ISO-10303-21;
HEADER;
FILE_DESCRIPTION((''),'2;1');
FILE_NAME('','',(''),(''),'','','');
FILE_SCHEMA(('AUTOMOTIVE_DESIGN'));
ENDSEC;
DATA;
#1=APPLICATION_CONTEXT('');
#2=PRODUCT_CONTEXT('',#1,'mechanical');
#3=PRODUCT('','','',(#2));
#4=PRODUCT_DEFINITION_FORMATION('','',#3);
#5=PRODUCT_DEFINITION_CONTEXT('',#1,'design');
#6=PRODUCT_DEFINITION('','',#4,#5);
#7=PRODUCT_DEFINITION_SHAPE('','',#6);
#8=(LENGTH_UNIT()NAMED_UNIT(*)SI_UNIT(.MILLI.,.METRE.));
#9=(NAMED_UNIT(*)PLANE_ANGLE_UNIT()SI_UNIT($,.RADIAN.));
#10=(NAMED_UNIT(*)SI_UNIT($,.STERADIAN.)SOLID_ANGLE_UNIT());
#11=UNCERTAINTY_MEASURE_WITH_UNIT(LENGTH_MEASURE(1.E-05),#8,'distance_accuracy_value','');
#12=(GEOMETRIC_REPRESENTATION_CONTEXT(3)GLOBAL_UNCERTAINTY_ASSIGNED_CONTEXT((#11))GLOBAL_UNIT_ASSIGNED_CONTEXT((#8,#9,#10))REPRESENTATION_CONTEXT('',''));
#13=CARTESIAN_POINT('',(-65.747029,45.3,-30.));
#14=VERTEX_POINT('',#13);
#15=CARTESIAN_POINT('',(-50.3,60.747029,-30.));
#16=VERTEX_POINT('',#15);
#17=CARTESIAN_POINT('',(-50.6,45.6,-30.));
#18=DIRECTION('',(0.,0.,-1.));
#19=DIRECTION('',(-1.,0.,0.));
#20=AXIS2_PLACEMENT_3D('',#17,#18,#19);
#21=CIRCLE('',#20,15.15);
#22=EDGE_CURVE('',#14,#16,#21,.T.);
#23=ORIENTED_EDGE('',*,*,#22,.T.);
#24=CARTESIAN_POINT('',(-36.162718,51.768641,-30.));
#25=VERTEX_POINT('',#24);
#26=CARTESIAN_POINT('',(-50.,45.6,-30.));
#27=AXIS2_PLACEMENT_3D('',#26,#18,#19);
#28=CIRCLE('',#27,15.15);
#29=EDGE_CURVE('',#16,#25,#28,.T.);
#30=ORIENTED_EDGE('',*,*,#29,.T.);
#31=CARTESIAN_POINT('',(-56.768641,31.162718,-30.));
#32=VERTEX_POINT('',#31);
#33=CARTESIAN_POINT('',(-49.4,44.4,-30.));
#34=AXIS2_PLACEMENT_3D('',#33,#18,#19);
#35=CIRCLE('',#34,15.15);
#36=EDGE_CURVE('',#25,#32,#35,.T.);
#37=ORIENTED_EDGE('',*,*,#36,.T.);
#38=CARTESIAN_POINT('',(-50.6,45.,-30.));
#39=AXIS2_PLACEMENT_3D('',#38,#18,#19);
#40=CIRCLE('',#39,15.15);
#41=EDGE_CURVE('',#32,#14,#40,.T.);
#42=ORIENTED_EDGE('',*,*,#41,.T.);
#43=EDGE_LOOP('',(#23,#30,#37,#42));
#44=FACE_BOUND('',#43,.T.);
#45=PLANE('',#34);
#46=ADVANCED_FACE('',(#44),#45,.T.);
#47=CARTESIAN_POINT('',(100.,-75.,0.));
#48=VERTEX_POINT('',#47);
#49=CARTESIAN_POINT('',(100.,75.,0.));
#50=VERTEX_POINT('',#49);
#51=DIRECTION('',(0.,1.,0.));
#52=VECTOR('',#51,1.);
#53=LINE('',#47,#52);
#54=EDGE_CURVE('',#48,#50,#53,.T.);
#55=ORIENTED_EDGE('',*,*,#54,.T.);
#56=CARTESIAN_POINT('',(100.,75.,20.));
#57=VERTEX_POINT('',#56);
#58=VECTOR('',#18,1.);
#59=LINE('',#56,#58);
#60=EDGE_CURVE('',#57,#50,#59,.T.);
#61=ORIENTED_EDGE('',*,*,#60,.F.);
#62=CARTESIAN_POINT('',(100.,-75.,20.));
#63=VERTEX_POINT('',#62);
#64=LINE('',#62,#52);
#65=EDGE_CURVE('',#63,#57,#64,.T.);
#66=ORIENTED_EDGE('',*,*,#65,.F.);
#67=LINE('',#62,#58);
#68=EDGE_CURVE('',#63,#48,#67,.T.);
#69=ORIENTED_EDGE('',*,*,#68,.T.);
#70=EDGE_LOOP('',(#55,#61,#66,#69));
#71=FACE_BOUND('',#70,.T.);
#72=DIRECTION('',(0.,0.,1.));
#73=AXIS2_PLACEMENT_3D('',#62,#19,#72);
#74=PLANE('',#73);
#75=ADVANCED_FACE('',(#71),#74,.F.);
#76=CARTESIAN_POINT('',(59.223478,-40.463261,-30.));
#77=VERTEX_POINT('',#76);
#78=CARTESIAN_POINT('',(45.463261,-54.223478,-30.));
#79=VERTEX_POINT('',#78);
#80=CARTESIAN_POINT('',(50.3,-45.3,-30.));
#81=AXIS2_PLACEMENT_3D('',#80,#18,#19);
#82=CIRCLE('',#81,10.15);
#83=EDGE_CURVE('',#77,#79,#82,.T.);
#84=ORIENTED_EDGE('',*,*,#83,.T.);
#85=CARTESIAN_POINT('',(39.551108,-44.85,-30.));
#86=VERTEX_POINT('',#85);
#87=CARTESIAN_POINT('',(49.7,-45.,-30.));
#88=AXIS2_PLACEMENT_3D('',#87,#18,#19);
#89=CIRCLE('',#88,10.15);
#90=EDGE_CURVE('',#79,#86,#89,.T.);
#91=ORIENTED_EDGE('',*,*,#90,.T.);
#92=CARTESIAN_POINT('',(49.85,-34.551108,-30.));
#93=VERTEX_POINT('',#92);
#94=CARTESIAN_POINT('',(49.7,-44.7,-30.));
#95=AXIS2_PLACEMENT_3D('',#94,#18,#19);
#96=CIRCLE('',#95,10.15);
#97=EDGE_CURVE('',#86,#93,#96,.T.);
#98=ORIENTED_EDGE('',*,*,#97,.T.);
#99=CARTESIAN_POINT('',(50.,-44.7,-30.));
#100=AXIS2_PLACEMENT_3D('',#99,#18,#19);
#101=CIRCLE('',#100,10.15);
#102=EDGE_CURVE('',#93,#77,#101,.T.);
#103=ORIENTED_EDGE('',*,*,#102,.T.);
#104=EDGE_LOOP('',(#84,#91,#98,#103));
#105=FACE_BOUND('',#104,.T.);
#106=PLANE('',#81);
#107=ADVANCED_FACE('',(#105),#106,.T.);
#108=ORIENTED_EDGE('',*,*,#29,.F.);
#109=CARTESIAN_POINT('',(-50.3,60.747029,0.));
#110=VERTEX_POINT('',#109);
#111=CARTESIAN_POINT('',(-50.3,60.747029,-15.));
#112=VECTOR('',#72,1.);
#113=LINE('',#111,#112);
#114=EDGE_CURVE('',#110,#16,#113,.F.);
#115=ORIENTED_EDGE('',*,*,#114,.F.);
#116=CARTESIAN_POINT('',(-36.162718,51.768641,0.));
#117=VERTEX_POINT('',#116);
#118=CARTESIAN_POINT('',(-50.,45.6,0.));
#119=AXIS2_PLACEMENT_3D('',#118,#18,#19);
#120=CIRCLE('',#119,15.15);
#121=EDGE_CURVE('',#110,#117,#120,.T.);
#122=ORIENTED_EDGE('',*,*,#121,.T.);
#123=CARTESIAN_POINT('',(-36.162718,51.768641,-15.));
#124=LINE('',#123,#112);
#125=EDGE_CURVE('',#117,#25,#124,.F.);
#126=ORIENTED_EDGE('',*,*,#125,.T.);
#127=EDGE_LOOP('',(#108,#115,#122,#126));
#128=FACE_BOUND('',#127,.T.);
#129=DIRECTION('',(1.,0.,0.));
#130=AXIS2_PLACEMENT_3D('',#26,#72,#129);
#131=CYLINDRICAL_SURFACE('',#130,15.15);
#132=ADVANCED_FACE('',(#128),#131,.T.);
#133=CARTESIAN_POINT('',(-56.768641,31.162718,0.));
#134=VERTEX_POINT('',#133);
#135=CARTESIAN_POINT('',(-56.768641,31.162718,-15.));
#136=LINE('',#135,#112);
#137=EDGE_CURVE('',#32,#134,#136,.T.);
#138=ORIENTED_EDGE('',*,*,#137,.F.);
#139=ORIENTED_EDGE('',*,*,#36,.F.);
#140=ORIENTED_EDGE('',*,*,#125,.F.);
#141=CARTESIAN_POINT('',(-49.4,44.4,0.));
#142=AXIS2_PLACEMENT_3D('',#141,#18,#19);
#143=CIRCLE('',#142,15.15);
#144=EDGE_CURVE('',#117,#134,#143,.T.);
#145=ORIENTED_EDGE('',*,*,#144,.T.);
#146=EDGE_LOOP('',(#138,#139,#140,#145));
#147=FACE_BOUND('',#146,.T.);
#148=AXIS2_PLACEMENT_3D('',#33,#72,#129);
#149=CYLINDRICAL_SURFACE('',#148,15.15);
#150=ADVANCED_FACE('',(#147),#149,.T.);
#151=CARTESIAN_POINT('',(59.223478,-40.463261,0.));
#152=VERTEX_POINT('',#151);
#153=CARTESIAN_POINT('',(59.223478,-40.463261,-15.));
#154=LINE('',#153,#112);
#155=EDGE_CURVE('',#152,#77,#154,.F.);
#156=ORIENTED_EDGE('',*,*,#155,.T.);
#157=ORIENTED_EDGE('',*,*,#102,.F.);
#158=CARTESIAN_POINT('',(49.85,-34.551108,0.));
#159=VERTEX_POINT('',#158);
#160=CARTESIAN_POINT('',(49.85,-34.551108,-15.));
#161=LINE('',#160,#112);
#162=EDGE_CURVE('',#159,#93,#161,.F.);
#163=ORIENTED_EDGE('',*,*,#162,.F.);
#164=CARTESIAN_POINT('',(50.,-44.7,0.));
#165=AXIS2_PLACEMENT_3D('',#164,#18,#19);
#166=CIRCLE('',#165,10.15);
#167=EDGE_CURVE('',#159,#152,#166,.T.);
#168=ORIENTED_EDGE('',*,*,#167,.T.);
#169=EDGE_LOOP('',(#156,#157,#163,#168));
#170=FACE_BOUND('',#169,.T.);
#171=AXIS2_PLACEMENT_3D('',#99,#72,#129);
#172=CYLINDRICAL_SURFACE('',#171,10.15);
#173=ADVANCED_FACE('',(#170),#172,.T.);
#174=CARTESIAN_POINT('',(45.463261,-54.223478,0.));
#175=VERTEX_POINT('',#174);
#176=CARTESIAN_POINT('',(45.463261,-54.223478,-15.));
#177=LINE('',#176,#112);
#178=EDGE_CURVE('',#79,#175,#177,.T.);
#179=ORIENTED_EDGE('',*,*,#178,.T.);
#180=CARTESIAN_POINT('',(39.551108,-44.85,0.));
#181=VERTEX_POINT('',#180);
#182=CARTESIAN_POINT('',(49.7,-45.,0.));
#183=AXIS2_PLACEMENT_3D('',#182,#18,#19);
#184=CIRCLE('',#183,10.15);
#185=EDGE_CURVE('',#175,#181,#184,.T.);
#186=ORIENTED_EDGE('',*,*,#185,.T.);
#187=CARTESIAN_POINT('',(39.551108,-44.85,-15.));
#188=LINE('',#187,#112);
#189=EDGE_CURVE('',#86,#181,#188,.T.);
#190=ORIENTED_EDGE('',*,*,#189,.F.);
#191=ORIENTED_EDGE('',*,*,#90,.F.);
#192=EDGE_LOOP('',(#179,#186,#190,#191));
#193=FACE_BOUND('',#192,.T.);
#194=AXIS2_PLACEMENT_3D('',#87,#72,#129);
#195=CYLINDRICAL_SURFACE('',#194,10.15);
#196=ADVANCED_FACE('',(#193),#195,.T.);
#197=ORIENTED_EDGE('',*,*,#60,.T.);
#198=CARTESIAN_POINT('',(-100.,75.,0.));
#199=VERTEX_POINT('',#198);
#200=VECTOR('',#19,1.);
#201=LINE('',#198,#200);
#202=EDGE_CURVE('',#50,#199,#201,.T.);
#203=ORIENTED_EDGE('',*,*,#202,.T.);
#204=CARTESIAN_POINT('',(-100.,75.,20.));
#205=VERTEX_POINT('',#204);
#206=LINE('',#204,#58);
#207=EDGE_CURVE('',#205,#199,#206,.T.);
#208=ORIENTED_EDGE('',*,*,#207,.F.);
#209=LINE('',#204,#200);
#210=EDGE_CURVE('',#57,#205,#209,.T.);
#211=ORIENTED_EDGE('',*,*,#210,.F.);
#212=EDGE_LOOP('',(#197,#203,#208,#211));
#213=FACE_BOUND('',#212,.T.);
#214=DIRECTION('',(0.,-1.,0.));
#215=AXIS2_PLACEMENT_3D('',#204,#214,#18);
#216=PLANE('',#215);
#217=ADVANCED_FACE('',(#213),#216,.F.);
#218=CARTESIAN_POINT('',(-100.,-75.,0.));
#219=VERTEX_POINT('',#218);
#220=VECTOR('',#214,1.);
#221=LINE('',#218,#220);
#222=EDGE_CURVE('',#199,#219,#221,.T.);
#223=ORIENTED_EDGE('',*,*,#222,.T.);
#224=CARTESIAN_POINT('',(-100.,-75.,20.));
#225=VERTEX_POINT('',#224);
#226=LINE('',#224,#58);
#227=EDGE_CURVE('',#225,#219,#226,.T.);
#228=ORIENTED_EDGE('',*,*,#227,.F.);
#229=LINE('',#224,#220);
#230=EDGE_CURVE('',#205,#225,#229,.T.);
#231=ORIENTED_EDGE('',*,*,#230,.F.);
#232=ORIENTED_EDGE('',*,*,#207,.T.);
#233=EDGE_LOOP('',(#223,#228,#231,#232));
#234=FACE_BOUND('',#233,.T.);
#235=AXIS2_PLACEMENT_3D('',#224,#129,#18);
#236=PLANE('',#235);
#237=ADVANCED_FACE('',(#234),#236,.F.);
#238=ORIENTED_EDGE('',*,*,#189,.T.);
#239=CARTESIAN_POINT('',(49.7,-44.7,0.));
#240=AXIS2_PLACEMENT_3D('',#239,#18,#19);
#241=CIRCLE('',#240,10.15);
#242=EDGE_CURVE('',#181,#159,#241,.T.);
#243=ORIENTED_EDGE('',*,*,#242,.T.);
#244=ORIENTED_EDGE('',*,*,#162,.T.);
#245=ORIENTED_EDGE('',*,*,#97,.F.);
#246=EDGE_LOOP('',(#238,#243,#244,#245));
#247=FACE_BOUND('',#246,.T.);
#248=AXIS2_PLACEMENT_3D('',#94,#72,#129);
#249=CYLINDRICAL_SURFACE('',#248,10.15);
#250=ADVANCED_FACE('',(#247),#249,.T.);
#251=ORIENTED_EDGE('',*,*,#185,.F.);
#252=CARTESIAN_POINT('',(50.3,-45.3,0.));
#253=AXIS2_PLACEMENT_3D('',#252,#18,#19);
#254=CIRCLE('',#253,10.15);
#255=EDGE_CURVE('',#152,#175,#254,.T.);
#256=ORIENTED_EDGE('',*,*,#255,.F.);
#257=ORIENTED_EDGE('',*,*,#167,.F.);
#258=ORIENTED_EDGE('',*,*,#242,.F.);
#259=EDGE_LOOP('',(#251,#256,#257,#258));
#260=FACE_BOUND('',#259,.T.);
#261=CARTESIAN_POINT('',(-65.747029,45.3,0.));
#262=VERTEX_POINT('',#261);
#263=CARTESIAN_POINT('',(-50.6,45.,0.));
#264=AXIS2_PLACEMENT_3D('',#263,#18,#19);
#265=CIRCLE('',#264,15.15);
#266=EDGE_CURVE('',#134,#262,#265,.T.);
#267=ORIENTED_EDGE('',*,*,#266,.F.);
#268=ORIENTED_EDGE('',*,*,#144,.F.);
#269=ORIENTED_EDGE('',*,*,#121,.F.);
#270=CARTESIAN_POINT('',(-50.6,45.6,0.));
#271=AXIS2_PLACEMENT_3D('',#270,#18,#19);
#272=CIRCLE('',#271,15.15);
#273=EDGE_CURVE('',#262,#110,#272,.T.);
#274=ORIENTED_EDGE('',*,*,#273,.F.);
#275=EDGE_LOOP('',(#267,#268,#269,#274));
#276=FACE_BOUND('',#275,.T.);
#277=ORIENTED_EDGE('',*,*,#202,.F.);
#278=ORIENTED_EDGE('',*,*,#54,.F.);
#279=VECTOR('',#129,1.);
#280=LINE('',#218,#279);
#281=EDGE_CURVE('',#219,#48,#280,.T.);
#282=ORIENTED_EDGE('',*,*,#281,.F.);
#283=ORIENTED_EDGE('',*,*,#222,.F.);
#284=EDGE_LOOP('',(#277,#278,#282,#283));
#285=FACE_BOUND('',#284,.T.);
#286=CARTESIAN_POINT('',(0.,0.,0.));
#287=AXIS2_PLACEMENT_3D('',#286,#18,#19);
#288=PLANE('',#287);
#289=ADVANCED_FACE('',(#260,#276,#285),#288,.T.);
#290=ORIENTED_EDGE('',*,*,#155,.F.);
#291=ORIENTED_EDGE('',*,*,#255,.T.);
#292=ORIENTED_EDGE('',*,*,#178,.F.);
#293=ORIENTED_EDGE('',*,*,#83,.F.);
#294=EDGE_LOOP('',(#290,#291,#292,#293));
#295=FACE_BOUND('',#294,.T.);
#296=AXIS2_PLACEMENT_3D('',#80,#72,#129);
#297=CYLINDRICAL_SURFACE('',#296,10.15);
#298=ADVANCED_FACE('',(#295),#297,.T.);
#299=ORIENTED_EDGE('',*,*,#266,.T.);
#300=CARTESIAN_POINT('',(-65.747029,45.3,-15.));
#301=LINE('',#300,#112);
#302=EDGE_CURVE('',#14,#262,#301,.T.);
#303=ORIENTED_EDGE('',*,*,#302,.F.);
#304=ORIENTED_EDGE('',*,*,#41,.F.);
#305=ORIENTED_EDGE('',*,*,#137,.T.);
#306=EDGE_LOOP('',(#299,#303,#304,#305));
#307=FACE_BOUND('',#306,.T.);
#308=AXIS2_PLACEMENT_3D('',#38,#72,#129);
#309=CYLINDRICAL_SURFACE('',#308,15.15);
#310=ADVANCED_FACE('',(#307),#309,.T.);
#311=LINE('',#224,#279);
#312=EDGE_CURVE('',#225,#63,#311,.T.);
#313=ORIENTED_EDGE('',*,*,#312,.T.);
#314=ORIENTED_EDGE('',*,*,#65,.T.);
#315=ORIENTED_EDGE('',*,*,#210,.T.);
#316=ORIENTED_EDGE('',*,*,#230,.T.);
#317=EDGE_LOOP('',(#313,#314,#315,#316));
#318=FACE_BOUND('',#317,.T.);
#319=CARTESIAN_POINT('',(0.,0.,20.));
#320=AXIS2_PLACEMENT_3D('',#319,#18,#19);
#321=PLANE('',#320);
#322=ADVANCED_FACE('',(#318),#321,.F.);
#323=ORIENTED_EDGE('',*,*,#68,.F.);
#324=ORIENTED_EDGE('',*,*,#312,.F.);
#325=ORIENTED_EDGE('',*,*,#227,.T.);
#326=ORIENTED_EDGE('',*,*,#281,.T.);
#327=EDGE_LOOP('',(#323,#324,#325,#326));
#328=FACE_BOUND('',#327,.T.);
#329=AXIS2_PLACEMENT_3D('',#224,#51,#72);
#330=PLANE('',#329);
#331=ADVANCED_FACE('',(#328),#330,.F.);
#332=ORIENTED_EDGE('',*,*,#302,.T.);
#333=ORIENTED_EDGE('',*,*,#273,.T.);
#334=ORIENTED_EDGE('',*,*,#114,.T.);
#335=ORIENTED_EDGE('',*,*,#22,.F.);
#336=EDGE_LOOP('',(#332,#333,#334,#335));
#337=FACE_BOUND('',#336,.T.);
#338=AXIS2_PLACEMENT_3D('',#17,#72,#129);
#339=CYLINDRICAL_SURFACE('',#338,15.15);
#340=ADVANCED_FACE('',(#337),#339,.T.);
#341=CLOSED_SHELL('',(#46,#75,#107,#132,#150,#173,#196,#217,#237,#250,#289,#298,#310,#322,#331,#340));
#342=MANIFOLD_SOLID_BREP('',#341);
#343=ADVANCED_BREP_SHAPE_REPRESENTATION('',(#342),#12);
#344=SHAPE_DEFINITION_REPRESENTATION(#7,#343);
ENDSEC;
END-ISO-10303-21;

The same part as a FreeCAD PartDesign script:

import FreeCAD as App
import Part
import Sketcher
Q = App.Units.Quantity

doc = App.newDocument("Part")
params = doc.addObject("Spreadsheet::Sheet", "Params")
for row, (alias, value) in enumerate([
    ("sketch1_width", "200 mm"),
    ("sketch1_height", "150 mm"),
    ("pad1_length", "20 mm"),
    ("sketch2_diameter", "20.3 mm"),
    ("sketch2_diameter2", "30.3 mm"),
    ("pad2_length", "30 mm"),
    ("sketch3_diameter", "20.3 mm"),
    ("sketch3_diameter2", "30.3 mm"),
    ("pad3_length", "30 mm"),
    ("sketch4_diameter", "20.3 mm"),
    ("sketch4_diameter2", "30.3 mm"),
    ("pad4_length", "30 mm"),
    ("sketch5_diameter", "20.3 mm"),
    ("sketch5_diameter2", "30.3 mm"),
    ("pad5_length", "30 mm"),
], start=1):
    params.set(f"A{row}", alias)
    params.set(f"B{row}", "=" + value)
    params.setAlias(f"B{row}", alias)

body = doc.addObject("PartDesign::Body", "Body")

# Sketch on XY plane
sketch1 = doc.addObject("Sketcher::SketchObject", "Sketch")
body.addObject(sketch1)
sketch1.AttachmentSupport = (doc.XY_Plane, [""])
sketch1.MapMode = "FlatFace"
sketch1.addGeometry([
    Part.LineSegment(App.Vector(-100, 75, 0), App.Vector(-100, -75, 0)),
    Part.LineSegment(App.Vector(-100, -75, 0), App.Vector(100, -75, 0)),
    Part.LineSegment(App.Vector(100, -75, 0), App.Vector(100, 75, 0)),
    Part.LineSegment(App.Vector(100, 75, 0), App.Vector(-100, 75, 0)),
], False)
sketch1.addConstraint([
    Sketcher.Constraint("Coincident", 0, 2, 1, 1),
    Sketcher.Constraint("Coincident", 1, 2, 2, 1),
    Sketcher.Constraint("Coincident", 2, 2, 3, 1),
    Sketcher.Constraint("Coincident", 3, 2, 0, 1),
    Sketcher.Constraint("Vertical", 0),
    Sketcher.Constraint("Horizontal", 1),
    Sketcher.Constraint("Vertical", 2),
    Sketcher.Constraint("Horizontal", 3),
    Sketcher.Constraint("Symmetric", 0, 2, 2, 2, -1, 1),
    Sketcher.Constraint("DistanceX", 1, 1, 1, 2, Q("200 mm")),
    Sketcher.Constraint("DistanceY", 0, 2, 0, 1, Q("150 mm")),
])
sketch1.setExpression("Constraints[9]", "Params.sketch1_width")
sketch1.setExpression("Constraints[10]", "Params.sketch1_height")
pad1 = doc.addObject("PartDesign::Pad", "Pad")
body.addObject(pad1)
pad1.Profile = sketch1
pad1.setExpression("Length", "Params.pad1_length")

# Sketch on XY plane
sketch2 = doc.addObject("Sketcher::SketchObject", "Sketch001")
body.addObject(sketch2)
sketch2.AttachmentSupport = (doc.XY_Plane, [""])
sketch2.MapMode = "FlatFace"
sketch2.addGeometry([
    Part.Circle(App.Vector(50.3, -45.3, 0), App.Vector(0, 0, 1), 10.15),
    Part.Circle(App.Vector(-49.4, 44.4, 0), App.Vector(0, 0, 1), 15.15),
], False)
sketch2.addConstraint([
    Sketcher.Constraint("Diameter", 0, Q("20.3 mm")),
    Sketcher.Constraint("Diameter", 1, Q("30.3 mm")),
    Sketcher.Constraint("DistanceX", -1, 1, 0, 3, Q("50.3 mm")),
    Sketcher.Constraint("DistanceY", 0, 3, -1, 1, Q("45.3 mm")),
    Sketcher.Constraint("DistanceX", 1, 3, -1, 1, Q("49.4 mm")),
    Sketcher.Constraint("DistanceY", -1, 1, 1, 3, Q("44.4 mm")),
])
sketch2.setExpression("Constraints[0]", "Params.sketch2_diameter")
sketch2.setExpression("Constraints[1]", "Params.sketch2_diameter2")
pad2 = doc.addObject("PartDesign::Pad", "Pad001")
body.addObject(pad2)
pad2.Profile = sketch2
pad2.setExpression("Length", "Params.pad2_length")
pad2.Reversed = True

# Sketch on XY plane
sketch3 = doc.addObject("Sketcher::SketchObject", "Sketch002")
body.addObject(sketch3)
sketch3.AttachmentSupport = (doc.XY_Plane, [""])
sketch3.MapMode = "FlatFace"
sketch3.addGeometry([
    Part.Circle(App.Vector(50, -44.7, 0), App.Vector(0, 0, 1), 10.15),
    Part.Circle(App.Vector(-50, 45.6, 0), App.Vector(0, 0, 1), 15.15),
], False)
sketch3.addConstraint([
    Sketcher.Constraint("Diameter", 0, Q("20.3 mm")),
    Sketcher.Constraint("Diameter", 1, Q("30.3 mm")),
    Sketcher.Constraint("DistanceX", -1, 1, 0, 3, Q("50 mm")),
    Sketcher.Constraint("DistanceX", 1, 3, -1, 1, Q("50 mm")),
    Sketcher.Constraint("DistanceY", 0, 3, -1, 1, Q("44.7 mm")),
    Sketcher.Constraint("DistanceY", -1, 1, 1, 3, Q("45.6 mm")),
])
sketch3.setExpression("Constraints[0]", "Params.sketch3_diameter")
sketch3.setExpression("Constraints[1]", "Params.sketch3_diameter2")
pad3 = doc.addObject("PartDesign::Pad", "Pad002")
body.addObject(pad3)
pad3.Profile = sketch3
pad3.setExpression("Length", "Params.pad3_length")
pad3.Reversed = True

# Sketch on XY plane
sketch4 = doc.addObject("Sketcher::SketchObject", "Sketch003")
body.addObject(sketch4)
sketch4.AttachmentSupport = (doc.XY_Plane, [""])
sketch4.MapMode = "FlatFace"
sketch4.addGeometry([
    Part.Circle(App.Vector(49.7, -45, 0), App.Vector(0, 0, 1), 10.15),
    Part.Circle(App.Vector(-50.6, 45, 0), App.Vector(0, 0, 1), 15.15),
], False)
sketch4.addConstraint([
    Sketcher.Constraint("Diameter", 0, Q("20.3 mm")),
    Sketcher.Constraint("Diameter", 1, Q("30.3 mm")),
    Sketcher.Constraint("DistanceY", 0, 3, -1, 1, Q("45 mm")),
    Sketcher.Constraint("DistanceY", -1, 1, 1, 3, Q("45 mm")),
    Sketcher.Constraint("DistanceX", -1, 1, 0, 3, Q("49.7 mm")),
    Sketcher.Constraint("DistanceX", 1, 3, -1, 1, Q("50.6 mm")),
])
sketch4.setExpression("Constraints[0]", "Params.sketch4_diameter")
sketch4.setExpression("Constraints[1]", "Params.sketch4_diameter2")
pad4 = doc.addObject("PartDesign::Pad", "Pad003")
body.addObject(pad4)
pad4.Profile = sketch4
pad4.setExpression("Length", "Params.pad4_length")
pad4.Reversed = True

# Sketch on XY plane
sketch5 = doc.addObject("Sketcher::SketchObject", "Sketch004")
body.addObject(sketch5)
sketch5.AttachmentSupport = (doc.XY_Plane, [""])
sketch5.MapMode = "FlatFace"
sketch5.addGeometry([
    Part.Circle(App.Vector(49.7, -44.7, 0), App.Vector(0, 0, 1), 10.15),
    Part.Circle(App.Vector(-50.6, 45.6, 0), App.Vector(0, 0, 1), 15.15),
], False)
sketch5.addConstraint([
    Sketcher.Constraint("Diameter", 0, Q("20.3 mm")),
    Sketcher.Constraint("Diameter", 1, Q("30.3 mm")),
    Sketcher.Constraint("DistanceX", -1, 1, 0, 3, Q("49.7 mm")),
    Sketcher.Constraint("DistanceY", 0, 3, -1, 1, Q("44.7 mm")),
    Sketcher.Constraint("DistanceX", 1, 3, -1, 1, Q("50.6 mm")),
    Sketcher.Constraint("DistanceY", -1, 1, 1, 3, Q("45.6 mm")),
])
sketch5.setExpression("Constraints[0]", "Params.sketch5_diameter")
sketch5.setExpression("Constraints[1]", "Params.sketch5_diameter2")
pad5 = doc.addObject("PartDesign::Pad", "Pad004")
body.addObject(pad5)
pad5.Profile = sketch5
pad5.setExpression("Length", "Params.pad5_length")
pad5.Reversed = True

doc.recompute()
